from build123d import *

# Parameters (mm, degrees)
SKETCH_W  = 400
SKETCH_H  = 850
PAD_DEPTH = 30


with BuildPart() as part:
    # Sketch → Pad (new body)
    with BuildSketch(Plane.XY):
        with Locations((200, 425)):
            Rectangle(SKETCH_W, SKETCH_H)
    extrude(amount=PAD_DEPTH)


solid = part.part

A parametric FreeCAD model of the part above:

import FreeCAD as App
import Part
import Sketcher

V = App.Vector


def add_polygon(sketch, points):
    """Adds a closed chain of lines whose ends are joined by coincident constraints."""
    first, n = sketch.GeometryCount, len(points)
    for a, b in zip(points, points[1:] + points[:1]):
        sketch.addGeometry(Part.LineSegment(App.Vector(*a, 0), App.Vector(*b, 0)), False)
    for i in range(n):
        sketch.addConstraint(Sketcher.Constraint("Coincident", first + i, 2, first + (i + 1) % n, 1))

doc = App.newDocument("Part")
body = doc.addObject("PartDesign::Body", "Body")

# Sketch on XY plane
sketch1 = doc.addObject("Sketcher::SketchObject", "Sketch")
body.addObject(sketch1)
sketch1.AttachmentSupport = (doc.XY_Plane, [""])
sketch1.MapMode = "FlatFace"
add_polygon(sketch1, [(0, 850), (0, 0), (400, 0), (400, 850)])  # lines 0-3
sketch1.addConstraint(Sketcher.Constraint("Vertical", 0))
sketch1.addConstraint(Sketcher.Constraint("Horizontal", 1))
sketch1.addConstraint(Sketcher.Constraint("Vertical", 2))
sketch1.addConstraint(Sketcher.Constraint("Horizontal", 3))
sketch1.addConstraint(Sketcher.Constraint("Coincident", 0, 2, -1, 1))
sketch1.addConstraint(Sketcher.Constraint("DistanceX", 1, 1, 1, 2, 400.0))
sketch1.addConstraint(Sketcher.Constraint("DistanceY", 0, 2, 0, 1, 850.0))
pad1 = doc.addObject("PartDesign::Pad", "Pad")
body.addObject(pad1)
pad1.Profile = sketch1
pad1.Length = 30

doc.recompute()
